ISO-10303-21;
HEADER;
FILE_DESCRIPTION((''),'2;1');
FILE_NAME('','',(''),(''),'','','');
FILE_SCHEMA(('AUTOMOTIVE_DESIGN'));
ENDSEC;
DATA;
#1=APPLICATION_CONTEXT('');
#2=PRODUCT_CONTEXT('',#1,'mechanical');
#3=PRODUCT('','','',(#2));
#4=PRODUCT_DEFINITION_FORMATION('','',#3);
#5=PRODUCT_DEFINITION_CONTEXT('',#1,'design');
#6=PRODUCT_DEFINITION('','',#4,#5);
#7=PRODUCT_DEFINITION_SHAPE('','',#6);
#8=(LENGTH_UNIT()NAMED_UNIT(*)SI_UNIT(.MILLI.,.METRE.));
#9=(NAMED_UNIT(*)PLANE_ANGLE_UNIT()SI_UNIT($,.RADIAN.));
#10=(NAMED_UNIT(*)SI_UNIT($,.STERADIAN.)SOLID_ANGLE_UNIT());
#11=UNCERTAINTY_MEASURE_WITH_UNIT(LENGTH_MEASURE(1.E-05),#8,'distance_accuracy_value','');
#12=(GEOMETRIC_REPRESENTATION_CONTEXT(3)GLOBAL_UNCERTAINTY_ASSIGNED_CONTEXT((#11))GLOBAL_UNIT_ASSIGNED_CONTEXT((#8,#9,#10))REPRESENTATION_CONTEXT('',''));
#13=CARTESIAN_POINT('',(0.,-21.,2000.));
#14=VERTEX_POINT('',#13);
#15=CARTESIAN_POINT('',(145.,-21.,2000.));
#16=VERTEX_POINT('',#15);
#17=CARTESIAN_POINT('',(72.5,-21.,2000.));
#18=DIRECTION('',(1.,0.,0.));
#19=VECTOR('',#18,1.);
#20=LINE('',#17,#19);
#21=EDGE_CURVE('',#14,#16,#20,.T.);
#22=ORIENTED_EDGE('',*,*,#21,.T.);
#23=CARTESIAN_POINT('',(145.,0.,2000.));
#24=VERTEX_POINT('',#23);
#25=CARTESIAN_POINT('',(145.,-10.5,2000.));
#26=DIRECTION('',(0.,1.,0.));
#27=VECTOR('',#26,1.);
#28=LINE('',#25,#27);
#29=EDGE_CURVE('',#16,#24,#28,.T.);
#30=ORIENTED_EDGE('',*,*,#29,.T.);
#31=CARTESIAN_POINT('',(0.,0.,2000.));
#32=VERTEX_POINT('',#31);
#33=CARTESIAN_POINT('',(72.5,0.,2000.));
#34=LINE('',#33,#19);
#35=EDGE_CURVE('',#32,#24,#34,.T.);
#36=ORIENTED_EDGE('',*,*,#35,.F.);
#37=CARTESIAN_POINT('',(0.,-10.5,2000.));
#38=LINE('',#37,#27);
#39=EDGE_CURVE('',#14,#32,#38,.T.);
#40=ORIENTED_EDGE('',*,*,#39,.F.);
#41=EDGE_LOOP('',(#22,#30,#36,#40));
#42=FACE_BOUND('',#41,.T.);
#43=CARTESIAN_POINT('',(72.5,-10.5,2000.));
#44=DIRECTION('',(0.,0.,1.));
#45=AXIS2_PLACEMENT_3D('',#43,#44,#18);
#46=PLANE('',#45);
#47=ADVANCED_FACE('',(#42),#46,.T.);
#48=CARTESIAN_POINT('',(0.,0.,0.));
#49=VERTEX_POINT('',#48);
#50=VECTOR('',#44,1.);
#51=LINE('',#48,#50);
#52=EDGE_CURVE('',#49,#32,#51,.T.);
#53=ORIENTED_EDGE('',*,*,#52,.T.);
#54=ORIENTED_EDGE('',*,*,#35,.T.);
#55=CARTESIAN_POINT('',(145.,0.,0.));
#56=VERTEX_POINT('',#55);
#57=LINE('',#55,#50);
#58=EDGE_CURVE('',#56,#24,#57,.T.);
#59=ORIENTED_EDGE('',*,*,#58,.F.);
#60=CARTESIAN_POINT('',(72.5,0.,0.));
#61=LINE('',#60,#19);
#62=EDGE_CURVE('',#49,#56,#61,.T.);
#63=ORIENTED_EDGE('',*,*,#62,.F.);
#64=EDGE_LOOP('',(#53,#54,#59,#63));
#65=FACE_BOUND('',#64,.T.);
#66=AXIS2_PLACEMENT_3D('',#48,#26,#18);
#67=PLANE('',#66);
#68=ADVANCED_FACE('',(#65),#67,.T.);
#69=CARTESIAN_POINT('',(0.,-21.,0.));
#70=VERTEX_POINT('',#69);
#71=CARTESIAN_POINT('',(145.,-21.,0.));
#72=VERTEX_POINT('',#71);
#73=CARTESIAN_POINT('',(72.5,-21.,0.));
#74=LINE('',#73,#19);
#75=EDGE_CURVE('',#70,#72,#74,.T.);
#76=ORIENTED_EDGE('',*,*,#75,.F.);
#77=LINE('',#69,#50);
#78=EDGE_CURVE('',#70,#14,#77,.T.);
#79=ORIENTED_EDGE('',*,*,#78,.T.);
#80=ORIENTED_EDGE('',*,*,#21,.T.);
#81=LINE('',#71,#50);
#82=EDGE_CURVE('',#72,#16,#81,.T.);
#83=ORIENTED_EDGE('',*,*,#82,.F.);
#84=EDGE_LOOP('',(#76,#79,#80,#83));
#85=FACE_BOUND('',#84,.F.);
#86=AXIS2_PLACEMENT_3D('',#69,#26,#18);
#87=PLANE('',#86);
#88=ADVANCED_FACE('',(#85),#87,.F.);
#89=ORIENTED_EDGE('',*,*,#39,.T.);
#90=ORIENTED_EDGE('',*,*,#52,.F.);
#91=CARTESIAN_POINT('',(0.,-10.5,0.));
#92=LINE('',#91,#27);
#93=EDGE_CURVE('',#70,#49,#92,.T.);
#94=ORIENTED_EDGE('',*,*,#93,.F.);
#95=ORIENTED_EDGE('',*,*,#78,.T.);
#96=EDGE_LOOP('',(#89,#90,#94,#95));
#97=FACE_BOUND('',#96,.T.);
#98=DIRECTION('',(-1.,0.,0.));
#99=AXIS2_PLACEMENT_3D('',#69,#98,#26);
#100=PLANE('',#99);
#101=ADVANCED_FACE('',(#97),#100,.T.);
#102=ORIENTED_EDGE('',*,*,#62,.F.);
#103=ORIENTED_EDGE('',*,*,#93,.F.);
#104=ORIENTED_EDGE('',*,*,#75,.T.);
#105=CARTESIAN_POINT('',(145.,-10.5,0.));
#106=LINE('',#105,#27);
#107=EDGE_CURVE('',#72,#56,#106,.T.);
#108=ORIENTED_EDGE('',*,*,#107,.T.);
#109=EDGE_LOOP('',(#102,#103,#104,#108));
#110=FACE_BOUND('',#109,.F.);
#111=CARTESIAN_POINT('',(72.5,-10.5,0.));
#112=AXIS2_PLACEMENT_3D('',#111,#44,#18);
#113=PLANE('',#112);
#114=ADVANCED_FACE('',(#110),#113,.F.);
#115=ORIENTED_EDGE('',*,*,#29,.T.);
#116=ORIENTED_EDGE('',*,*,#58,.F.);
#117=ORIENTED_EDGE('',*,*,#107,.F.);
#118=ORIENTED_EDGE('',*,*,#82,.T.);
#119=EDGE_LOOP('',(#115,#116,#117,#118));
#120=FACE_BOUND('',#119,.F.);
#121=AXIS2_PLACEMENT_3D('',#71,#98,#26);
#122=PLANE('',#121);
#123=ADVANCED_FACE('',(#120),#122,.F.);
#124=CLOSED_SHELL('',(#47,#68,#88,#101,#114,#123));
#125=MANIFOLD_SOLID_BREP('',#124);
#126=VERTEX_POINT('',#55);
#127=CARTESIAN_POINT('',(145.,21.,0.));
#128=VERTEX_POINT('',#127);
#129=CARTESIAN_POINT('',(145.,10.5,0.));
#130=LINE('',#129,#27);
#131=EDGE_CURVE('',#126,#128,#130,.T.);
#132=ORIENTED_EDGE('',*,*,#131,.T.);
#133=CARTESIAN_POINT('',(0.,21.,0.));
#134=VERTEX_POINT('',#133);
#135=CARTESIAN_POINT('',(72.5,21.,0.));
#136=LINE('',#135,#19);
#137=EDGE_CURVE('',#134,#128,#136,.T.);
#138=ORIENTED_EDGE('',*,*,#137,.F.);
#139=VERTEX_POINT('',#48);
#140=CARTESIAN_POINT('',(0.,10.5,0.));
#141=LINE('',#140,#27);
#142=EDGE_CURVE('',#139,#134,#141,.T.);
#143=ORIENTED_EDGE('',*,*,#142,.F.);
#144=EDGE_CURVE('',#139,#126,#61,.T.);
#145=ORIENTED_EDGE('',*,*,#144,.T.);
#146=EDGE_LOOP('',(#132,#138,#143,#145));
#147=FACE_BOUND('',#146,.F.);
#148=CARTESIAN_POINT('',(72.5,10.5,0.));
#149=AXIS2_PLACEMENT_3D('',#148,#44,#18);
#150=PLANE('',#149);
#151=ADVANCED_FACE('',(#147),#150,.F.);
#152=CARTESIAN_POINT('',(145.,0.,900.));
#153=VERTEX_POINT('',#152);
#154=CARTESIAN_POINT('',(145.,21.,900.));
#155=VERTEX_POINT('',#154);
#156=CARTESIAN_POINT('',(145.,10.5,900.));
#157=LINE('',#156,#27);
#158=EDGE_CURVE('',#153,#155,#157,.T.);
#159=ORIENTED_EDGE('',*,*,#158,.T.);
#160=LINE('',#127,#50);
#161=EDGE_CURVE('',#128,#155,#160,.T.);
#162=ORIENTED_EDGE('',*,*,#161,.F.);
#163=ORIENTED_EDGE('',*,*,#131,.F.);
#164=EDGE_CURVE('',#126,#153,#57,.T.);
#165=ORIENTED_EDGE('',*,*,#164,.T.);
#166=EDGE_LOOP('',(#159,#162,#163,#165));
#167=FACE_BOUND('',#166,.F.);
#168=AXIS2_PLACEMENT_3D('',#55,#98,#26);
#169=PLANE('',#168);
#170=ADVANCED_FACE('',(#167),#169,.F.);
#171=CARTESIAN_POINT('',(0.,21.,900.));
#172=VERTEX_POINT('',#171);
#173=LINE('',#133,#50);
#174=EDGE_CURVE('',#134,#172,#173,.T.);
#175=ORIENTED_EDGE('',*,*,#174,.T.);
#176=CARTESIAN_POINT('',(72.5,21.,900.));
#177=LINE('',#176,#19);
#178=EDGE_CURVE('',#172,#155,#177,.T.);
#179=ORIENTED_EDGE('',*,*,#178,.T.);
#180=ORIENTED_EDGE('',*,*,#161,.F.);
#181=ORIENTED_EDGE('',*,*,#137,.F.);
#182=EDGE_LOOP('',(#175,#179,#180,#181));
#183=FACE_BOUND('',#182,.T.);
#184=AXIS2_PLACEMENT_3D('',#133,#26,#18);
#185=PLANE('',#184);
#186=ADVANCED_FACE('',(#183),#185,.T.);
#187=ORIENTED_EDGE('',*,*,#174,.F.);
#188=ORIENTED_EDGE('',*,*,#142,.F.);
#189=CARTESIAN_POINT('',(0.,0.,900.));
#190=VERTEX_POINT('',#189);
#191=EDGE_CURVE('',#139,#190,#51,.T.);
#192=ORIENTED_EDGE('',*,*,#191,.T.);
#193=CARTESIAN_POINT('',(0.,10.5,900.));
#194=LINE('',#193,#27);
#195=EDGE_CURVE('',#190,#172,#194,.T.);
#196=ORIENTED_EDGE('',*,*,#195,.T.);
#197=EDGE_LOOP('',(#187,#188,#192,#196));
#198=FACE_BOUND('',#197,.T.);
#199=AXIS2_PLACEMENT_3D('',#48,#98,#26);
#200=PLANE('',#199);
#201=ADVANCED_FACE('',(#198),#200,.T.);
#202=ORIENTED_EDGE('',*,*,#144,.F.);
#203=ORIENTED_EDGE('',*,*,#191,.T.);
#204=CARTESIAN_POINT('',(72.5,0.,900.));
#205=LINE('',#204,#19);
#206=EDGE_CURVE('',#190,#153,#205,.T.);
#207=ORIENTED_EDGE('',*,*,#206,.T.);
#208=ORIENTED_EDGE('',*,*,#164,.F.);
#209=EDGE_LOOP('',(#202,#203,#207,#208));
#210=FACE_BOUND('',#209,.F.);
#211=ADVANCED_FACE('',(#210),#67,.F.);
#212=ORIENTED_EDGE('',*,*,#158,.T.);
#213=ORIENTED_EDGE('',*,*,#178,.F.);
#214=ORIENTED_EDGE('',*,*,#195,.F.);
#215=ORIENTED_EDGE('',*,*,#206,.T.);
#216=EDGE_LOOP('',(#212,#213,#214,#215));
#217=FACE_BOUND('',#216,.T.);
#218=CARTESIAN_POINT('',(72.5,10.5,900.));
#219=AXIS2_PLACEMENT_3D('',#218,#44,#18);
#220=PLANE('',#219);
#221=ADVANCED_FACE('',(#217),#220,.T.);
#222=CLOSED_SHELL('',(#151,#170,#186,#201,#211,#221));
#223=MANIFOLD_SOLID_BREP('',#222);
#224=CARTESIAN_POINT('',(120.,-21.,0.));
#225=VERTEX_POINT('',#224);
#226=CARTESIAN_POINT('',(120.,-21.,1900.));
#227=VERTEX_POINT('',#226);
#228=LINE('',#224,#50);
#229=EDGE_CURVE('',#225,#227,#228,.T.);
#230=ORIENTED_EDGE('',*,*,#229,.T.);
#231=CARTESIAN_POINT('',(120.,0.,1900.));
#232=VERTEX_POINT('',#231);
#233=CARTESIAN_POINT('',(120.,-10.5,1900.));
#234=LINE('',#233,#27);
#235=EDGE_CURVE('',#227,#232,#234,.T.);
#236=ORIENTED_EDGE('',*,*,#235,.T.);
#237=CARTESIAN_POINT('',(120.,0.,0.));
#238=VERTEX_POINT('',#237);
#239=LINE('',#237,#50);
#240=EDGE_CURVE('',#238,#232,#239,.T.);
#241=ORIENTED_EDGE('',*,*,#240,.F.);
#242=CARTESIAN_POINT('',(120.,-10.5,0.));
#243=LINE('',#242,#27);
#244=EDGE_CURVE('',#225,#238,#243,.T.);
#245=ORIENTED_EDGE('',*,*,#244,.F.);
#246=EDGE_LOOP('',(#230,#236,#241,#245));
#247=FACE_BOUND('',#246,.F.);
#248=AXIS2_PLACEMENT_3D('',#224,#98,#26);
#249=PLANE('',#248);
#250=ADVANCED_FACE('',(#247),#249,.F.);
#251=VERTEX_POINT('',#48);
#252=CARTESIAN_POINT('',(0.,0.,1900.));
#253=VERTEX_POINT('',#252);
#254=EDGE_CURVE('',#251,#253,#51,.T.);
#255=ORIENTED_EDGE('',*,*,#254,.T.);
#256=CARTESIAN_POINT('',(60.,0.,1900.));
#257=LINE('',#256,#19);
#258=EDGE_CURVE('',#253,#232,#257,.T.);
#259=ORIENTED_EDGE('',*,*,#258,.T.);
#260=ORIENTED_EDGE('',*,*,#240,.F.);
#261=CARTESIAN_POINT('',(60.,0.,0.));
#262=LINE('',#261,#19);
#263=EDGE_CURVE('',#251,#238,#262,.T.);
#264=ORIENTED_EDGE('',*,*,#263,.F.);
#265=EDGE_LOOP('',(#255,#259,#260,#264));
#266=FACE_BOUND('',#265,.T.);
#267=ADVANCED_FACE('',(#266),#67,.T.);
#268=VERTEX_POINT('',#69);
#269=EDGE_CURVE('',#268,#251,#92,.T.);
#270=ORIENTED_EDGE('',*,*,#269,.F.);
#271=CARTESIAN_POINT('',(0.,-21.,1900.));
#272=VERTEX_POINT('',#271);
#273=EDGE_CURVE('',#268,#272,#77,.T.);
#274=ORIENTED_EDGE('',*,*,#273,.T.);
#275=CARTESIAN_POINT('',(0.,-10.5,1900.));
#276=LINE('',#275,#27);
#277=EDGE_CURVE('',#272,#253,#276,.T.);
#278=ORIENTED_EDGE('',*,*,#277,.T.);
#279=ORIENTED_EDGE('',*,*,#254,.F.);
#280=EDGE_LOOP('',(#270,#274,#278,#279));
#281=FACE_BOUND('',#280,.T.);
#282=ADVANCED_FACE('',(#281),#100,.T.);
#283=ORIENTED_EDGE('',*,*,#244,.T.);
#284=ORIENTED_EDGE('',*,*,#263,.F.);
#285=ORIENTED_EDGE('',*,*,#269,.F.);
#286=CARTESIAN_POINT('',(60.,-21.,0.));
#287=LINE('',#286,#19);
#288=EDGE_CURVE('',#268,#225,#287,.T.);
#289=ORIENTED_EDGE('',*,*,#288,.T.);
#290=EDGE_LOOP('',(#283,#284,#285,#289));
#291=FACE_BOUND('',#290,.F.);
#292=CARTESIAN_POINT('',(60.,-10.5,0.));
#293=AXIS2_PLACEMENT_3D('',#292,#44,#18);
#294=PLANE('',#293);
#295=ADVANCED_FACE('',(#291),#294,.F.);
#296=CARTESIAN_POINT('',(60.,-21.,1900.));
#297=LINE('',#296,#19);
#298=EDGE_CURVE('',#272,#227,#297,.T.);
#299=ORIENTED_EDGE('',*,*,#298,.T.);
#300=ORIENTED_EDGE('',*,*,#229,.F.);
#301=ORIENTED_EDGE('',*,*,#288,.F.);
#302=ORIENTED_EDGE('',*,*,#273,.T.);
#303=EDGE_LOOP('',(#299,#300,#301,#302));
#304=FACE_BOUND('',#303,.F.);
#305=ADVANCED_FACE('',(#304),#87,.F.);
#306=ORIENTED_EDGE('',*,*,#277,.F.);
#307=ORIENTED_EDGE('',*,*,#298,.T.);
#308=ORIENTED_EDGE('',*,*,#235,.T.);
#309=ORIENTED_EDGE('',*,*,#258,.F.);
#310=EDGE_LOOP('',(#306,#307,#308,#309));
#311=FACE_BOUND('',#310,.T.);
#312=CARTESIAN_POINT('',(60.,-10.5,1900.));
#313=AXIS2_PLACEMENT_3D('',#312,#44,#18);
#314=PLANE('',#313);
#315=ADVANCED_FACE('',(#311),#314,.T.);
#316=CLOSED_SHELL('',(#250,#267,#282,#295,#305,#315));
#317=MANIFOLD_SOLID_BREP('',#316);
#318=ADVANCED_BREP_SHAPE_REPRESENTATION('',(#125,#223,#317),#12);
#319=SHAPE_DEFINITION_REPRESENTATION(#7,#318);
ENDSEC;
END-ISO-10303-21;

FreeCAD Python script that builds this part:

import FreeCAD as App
import Part
import Sketcher

doc = App.newDocument("Part")
params = doc.addObject("Spreadsheet::Sheet", "Params")
for row, (alias, value) in enumerate([
    ("sketch1_width", "120 mm"),
    ("sketch1_height", "21 mm"),
    ("pad1_length", "1900 mm"),
    ("sketch2_width", "145 mm"),
    ("sketch2_height", "21 mm"),
    ("pad2_length", "900 mm"),
    ("sketch3_width", "145 mm"),
    ("sketch3_height", "21 mm"),
    ("pad3_length", "2000 mm"),
], start=1):
    params.set(f"A{row}", alias)
    params.set(f"B{row}", "=" + value)
    params.setAlias(f"B{row}", alias)

body = doc.addObject("PartDesign::Body", "Body")

sketch1 = body.newObject("Sketcher::SketchObject", "Sketch")
sketch1.AttachmentSupport = (doc.getObject("XY_Plane"), [""])
sketch1.MapMode = "FlatFace"
sketch1.addGeometry(Part.LineSegment(App.Vector(0, 0, 0), App.Vector(0, -21, 0)), False)
sketch1.addGeometry(Part.LineSegment(App.Vector(0, -21, 0), App.Vector(120, -21, 0)), False)
sketch1.addGeometry(Part.LineSegment(App.Vector(120, -21, 0), App.Vector(120, 0, 0)), False)
sketch1.addGeometry(Part.LineSegment(App.Vector(120, 0, 0), App.Vector(0, 0, 0)), False)
sketch1.addConstraint(Sketcher.Constraint("Coincident", 0, 2, 1, 1))
sketch1.addConstraint(Sketcher.Constraint("Coincident", 1, 2, 2, 1))
sketch1.addConstraint(Sketcher.Constraint("Coincident", 2, 2, 3, 1))
sketch1.addConstraint(Sketcher.Constraint("Coincident", 3, 2, 0, 1))
sketch1.addConstraint(Sketcher.Constraint("Vertical", 0))
sketch1.addConstraint(Sketcher.Constraint("Horizontal", 1))
sketch1.addConstraint(Sketcher.Constraint("Vertical", 2))
sketch1.addConstraint(Sketcher.Constraint("Horizontal", 3))
sketch1.addConstraint(Sketcher.Constraint("Coincident", 3, 2, -1, 1))
sketch1.addConstraint(Sketcher.Constraint("DistanceX", 1, 1, 1, 2, 120.0))
sketch1.addConstraint(Sketcher.Constraint("DistanceY", 0, 2, 0, 1, 21.0))
sketch1.setExpression("Constraints[9]", "Params.sketch1_width")
sketch1.setExpression("Constraints[10]", "Params.sketch1_height")
pad1 = body.newObject("PartDesign::Pad", "Pad")
pad1.Profile = sketch1
pad1.setExpression("Length", "Params.pad1_length")
body2 = doc.addObject("PartDesign::Body", "Body001")

sketch2 = body2.newObject("Sketcher::SketchObject", "Sketch001")
sketch2.AttachmentSupport = (doc.getObject("XY_Plane001"), [""])
sketch2.MapMode = "FlatFace"
sketch2.addGeometry(Part.LineSegment(App.Vector(0, 21, 0), App.Vector(0, 0, 0)), False)
sketch2.addGeometry(Part.LineSegment(App.Vector(0, 0, 0), App.Vector(145, 0, 0)), False)
sketch2.addGeometry(Part.LineSegment(App.Vector(145, 0, 0), App.Vector(145, 21, 0)), False)
sketch2.addGeometry(Part.LineSegment(App.Vector(145, 21, 0), App.Vector(0, 21, 0)), False)
sketch2.addConstraint(Sketcher.Constraint("Coincident", 0, 2, 1, 1))
sketch2.addConstraint(Sketcher.Constraint("Coincident", 1, 2, 2, 1))
sketch2.addConstraint(Sketcher.Constraint("Coincident", 2, 2, 3, 1))
sketch2.addConstraint(Sketcher.Constraint("Coincident", 3, 2, 0, 1))
sketch2.addConstraint(Sketcher.Constraint("Vertical", 0))
sketch2.addConstraint(Sketcher.Constraint("Horizontal", 1))
sketch2.addConstraint(Sketcher.Constraint("Vertical", 2))
sketch2.addConstraint(Sketcher.Constraint("Horizontal", 3))
sketch2.addConstraint(Sketcher.Constraint("Coincident", 0, 2, -1, 1))
sketch2.addConstraint(Sketcher.Constraint("DistanceX", 1, 1, 1, 2, 145.0))
sketch2.addConstraint(Sketcher.Constraint("DistanceY", 0, 2, 0, 1, 21.0))
sketch2.setExpression("Constraints[9]", "Params.sketch2_width")
sketch2.setExpression("Constraints[10]", "Params.sketch2_height")
pad2 = body2.newObject("PartDesign::Pad", "Pad001")
pad2.Profile = sketch2
pad2.setExpression("Length", "Params.pad2_length")
body3 = doc.addObject("PartDesign::Body", "Body002")

sketch3 = body3.newObject("Sketcher::SketchObject", "Sketch002")
sketch3.AttachmentSupport = (doc.getObject("XY_Plane002"), [""])
sketch3.MapMode = "FlatFace"
sketch3.addGeometry(Part.LineSegment(App.Vector(0, 0, 0), App.Vector(0, -21, 0)), False)
sketch3.addGeometry(Part.LineSegment(App.Vector(0, -21, 0), App.Vector(145, -21, 0)), False)
sketch3.addGeometry(Part.LineSegment(App.Vector(145, -21, 0), App.Vector(145, 0, 0)), False)
sketch3.addGeometry(Part.LineSegment(App.Vector(145, 0, 0), App.Vector(0, 0, 0)), False)
sketch3.addConstraint(Sketcher.Constraint("Coincident", 0, 2, 1, 1))
sketch3.addConstraint(Sketcher.Constraint("Coincident", 1, 2, 2, 1))
sketch3.addConstraint(Sketcher.Constraint("Coincident", 2, 2, 3, 1))
sketch3.addConstraint(Sketcher.Constraint("Coincident", 3, 2, 0, 1))
sketch3.addConstraint(Sketcher.Constraint("Vertical", 0))
sketch3.addConstraint(Sketcher.Constraint("Horizontal", 1))
sketch3.addConstraint(Sketcher.Constraint("Vertical", 2))
sketch3.addConstraint(Sketcher.Constraint("Horizontal", 3))
sketch3.addConstraint(Sketcher.Constraint("Coincident", 3, 2, -1, 1))
sketch3.addConstraint(Sketcher.Constraint("DistanceX", 1, 1, 1, 2, 145.0))
sketch3.addConstraint(Sketcher.Constraint("DistanceY", 0, 2, 0, 1, 21.0))
sketch3.setExpression("Constraints[9]", "Params.sketch3_width")
sketch3.setExpression("Constraints[10]", "Params.sketch3_height")
pad3 = body3.newObject("PartDesign::Pad", "Pad002")
pad3.Profile = sketch3
pad3.setExpression("Length", "Params.pad3_length")

doc.recompute()
